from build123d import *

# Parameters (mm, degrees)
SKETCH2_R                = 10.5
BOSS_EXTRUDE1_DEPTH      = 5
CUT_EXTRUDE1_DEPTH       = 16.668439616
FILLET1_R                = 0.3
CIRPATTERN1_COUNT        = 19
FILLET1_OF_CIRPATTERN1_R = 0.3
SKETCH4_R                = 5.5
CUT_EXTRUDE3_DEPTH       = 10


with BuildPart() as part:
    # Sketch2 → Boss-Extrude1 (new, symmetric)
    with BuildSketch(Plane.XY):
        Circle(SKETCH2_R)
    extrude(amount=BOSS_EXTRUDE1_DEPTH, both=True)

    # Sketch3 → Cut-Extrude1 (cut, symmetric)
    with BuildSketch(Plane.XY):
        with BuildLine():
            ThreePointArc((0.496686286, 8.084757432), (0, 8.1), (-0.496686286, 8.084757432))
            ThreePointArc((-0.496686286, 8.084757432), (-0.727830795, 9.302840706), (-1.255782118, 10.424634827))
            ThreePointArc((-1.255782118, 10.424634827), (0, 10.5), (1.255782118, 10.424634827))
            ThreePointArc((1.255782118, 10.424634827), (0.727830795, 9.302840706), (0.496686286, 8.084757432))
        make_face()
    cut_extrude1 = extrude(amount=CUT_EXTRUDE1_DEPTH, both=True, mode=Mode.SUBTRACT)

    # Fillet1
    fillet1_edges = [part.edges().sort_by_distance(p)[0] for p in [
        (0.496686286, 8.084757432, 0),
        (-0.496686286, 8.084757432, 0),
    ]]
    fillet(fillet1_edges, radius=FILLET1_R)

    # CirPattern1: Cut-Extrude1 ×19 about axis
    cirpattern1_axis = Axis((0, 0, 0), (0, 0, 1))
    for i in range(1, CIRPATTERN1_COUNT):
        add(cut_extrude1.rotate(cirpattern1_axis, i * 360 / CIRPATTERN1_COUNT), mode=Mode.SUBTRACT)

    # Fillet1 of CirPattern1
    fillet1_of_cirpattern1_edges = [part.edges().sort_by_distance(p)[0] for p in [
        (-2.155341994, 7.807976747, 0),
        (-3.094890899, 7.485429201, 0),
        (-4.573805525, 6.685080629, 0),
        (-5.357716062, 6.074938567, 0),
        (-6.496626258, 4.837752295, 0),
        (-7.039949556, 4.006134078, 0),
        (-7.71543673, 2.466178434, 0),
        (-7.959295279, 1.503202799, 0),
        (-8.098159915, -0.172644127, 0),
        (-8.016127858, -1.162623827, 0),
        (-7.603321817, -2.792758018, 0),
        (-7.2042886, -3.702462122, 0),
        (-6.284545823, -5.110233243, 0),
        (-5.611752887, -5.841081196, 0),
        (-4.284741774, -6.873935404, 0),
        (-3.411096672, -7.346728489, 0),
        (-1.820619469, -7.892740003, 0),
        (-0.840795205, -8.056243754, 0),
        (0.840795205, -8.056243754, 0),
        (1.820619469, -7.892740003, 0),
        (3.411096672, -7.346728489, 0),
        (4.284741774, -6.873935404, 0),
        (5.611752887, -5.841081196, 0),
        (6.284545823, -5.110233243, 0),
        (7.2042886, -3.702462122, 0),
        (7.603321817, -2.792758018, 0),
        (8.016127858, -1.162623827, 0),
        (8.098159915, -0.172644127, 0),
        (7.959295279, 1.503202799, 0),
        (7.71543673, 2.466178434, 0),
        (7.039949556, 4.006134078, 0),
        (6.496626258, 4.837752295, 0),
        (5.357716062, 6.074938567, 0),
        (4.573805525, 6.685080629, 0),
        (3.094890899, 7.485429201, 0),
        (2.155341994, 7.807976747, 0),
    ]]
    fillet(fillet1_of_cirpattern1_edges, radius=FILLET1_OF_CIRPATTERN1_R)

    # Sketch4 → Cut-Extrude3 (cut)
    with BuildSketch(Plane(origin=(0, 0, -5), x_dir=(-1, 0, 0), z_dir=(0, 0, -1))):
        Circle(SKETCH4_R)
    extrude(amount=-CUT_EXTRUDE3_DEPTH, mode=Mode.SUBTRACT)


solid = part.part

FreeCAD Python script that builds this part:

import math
import FreeCAD as App
import Part
import Sketcher
from FreeCAD import Vector


def edges_at(feature, points):
    """Names of the edges that pass closest to the given points."""
    edges = feature.Shape.Edges
    near = lambda p: min(range(len(edges)), key=lambda i: edges[i].distToShape(Part.Vertex(*p))[0])
    return sorted({f"Edge{near(p) + 1}" for p in points})

doc = App.newDocument("Part")
body = doc.addObject("PartDesign::Body", "Body")

# Sketch on XY plane
sketch1 = doc.addObject("Sketcher::SketchObject", "Sketch")
body.addObject(sketch1)
sketch1.AttachmentSupport = (doc.XY_Plane, [""])
sketch1.MapMode = "FlatFace"
sketch1.addGeometry(Part.Circle(Vector(0, 0, 0), Vector(0, 0, 1), 10), False)
sketch1.addConstraint([
    Sketcher.Constraint("Coincident", 0, 3, -1, 1),
    Sketcher.Constraint("Diameter", 0, 21.0),
])
pad1 = doc.addObject("PartDesign::Pad", "Pad")
body.addObject(pad1)
pad1.Profile = sketch1
pad1.Length = 10
pad1.Midplane = True

# Sketch on XY plane
sketch2 = doc.addObject("Sketcher::SketchObject", "Sketch001")
body.addObject(sketch2)
sketch2.AttachmentSupport = (doc.XY_Plane, [""])
sketch2.MapMode = "FlatFace"
sketch2.addGeometry([
    Part.ArcOfCircle(Part.Circle(Vector(0, 0, 0), Vector(0, 0, 1), 8.1), math.radians(86.48), math.radians(93.52)),
    Part.ArcOfCircle(Part.Circle(Vector(5.4, 7.8, 0), Vector(0, 0, 1), 4.9), math.radians(148), math.radians(176)),
    Part.ArcOfCircle(Part.Circle(Vector(0, 0, 0), Vector(0, 0, 1), 10.5), math.radians(83.13), math.radians(96.87)),
    Part.ArcOfCircle(Part.Circle(Vector(-5.4, 7.8, 0), Vector(0, 0, 1), 4.9), math.radians(4), math.radians(32)),
], False)
sketch2.addConstraint([
    Sketcher.Constraint("Coincident", 0, 1, 1, 2),
    Sketcher.Constraint("Coincident", 1, 1, 2, 1),
    Sketcher.Constraint("Coincident", 2, 2, 3, 2),
    Sketcher.Constraint("Coincident", 3, 1, 0, 2),
    Sketcher.Constraint("Coincident", 0, 3, -1, 1),
    Sketcher.Constraint("Coincident", 2, 3, -1, 1),
    Sketcher.Constraint("Equal", 1, 3),
    Sketcher.Constraint("Symmetric", 1, 3, 3, 3, -2),
    Sketcher.Constraint("Radius", 0, 8.1),
    Sketcher.Constraint("Radius", 2, 10.5),
    Sketcher.Constraint("Radius", 1, 4.926224),
    Sketcher.Constraint("DistanceX", -1, 1, 1, 3, 5.41364),
    Sketcher.Constraint("DistanceY", 1, 3, 1, 1, 2.64195),
])
pocket1 = doc.addObject("PartDesign::Pocket", "Pocket")
body.addObject(pocket1)
pocket1.Profile = sketch2
pocket1.Length = 33.336879
pocket1.Midplane = True
doc.recompute()

fillet = doc.addObject("PartDesign::Fillet", "Fillet")
body.addObject(fillet)
fillet.Base = (pocket1, edges_at(pocket1, [(0.497, 8.085, 0), (-0.497, 8.085, 0)]))
fillet.Radius = 0.3
doc.recompute()

polarpattern = doc.addObject("PartDesign::PolarPattern", "PolarPattern")
body.addObject(polarpattern)
polarpattern.Originals = [pocket1]
polarpattern.Axis = (doc.Z_Axis, [""])
polarpattern.Angle = 360
polarpattern.Occurrences = 19
body.Tip = polarpattern
doc.recompute()

fillet2 = doc.addObject("PartDesign::Fillet", "Fillet001")
body.addObject(fillet2)
fillet2.Base = (polarpattern, edges_at(polarpattern, [
    (-2.155, 7.808, 0),
    (-3.095, 7.485, 0),
    (-4.574, 6.685, 0),
    (-5.358, 6.075, 0),
    (-6.497, 4.838, 0),
    (-7.04, 4.006, 0),
    (-7.715, 2.466, 0),
    (-7.959, 1.503, 0),
    (-8.098, -0.173, 0),
    (-8.016, -1.163, 0),
    (-7.603, -2.793, 0),
    (-7.204, -3.702, 0),
    (-6.285, -5.11, 0),
    (-5.612, -5.841, 0),
    (-4.285, -6.874, 0),
    (-3.411, -7.347, 0),
    (-1.821, -7.893, 0),
    (-0.841, -8.056, 0),
    (0.841, -8.056, 0),
    (1.821, -7.893, 0),
    (3.411, -7.347, 0),
    (4.285, -6.874, 0),
    (5.612, -5.841, 0),
    (6.285, -5.11, 0),
    (7.204, -3.702, 0),
    (7.603, -2.793, 0),
    (8.016, -1.163, 0),
    (8.098, -0.173, 0),
    (7.959, 1.503, 0),
    (7.715, 2.466, 0),
    (7.04, 4.006, 0),
    (6.497, 4.838, 0),
    (5.358, 6.075, 0),
    (4.574, 6.685, 0),
    (3.095, 7.485, 0),
    (2.155, 7.808, 0),
]))
fillet2.Radius = 0.3

# Sketch on XY plane
sketch3 = doc.addObject("Sketcher::SketchObject", "Sketch002")
body.addObject(sketch3)
sketch3.AttachmentSupport = (doc.XY_Plane, [""])
sketch3.MapMode = "FlatFace"
sketch3.AttachmentOffset = App.Placement(Vector(0, 0, -5), App.Rotation())
sketch3.addGeometry(Part.Circle(Vector(0, 0, 0), Vector(0, 0, 1), 6), False)
sketch3.addConstraint([
    Sketcher.Constraint("Coincident", 0, 3, -1, 1),
    Sketcher.Constraint("Diameter", 0, 11.0),
])
pocket2 = doc.addObject("PartDesign::Pocket", "Pocket001")
body.addObject(pocket2)
pocket2.Profile = sketch3
pocket2.Length = 10
pocket2.Reversed = True

doc.recompute()
